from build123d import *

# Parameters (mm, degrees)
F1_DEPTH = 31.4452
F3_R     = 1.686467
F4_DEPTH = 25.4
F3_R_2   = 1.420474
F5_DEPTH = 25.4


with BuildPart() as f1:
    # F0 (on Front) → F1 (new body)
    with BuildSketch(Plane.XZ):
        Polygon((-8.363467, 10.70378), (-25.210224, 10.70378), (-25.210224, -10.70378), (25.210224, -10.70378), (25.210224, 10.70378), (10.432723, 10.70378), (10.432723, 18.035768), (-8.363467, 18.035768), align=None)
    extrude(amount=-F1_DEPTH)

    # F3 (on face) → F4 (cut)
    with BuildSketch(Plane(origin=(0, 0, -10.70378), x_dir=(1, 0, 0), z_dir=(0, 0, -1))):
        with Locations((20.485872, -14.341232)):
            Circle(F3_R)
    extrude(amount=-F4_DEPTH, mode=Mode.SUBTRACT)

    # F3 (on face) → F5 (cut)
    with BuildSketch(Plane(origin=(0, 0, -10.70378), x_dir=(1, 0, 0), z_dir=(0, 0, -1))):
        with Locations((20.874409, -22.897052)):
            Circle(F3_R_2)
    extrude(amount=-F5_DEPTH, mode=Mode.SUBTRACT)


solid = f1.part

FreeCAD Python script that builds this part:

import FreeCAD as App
import Part
import Sketcher
from FreeCAD import Vector


def add_polygon(sketch, points):
    """Adds a closed chain of lines whose ends are joined by coincident constraints."""
    first, n = sketch.GeometryCount, len(points)
    for a, b in zip(points, points[1:] + points[:1]):
        sketch.addGeometry(Part.LineSegment(App.Vector(*a, 0), App.Vector(*b, 0)), False)
    for i in range(n):
        sketch.addConstraint(Sketcher.Constraint("Coincident", first + i, 2, first + (i + 1) % n, 1))

doc = App.newDocument("Part")
params = doc.addObject("Spreadsheet::Sheet", "Params")
for row, (alias, value) in enumerate([
    ("pad1_length", "1.238 in"),
    ("pocket1_length", "1 in"),
    ("pocket2_length", "1 in"),
], start=1):
    params.set(f"A{row}", alias)
    params.set(f"B{row}", "=" + value)
    params.setAlias(f"B{row}", alias)

body = doc.addObject("PartDesign::Body", "Body")

# Sketch on XZ plane
sketch1 = doc.addObject("Sketcher::SketchObject", "Sketch")
body.addObject(sketch1)
sketch1.AttachmentSupport = (doc.XZ_Plane, [""])
sketch1.MapMode = "FlatFace"
add_polygon(sketch1, [(-8, 11), (-25, 11), (-25, -11), (25, -11), (25, 11), (10, 11), (10, 18), (-8, 18)])  # lines 0-7
sketch1.addConstraint([
    Sketcher.Constraint("Horizontal", 0),
    Sketcher.Constraint("Vertical", 1),
    Sketcher.Constraint("Horizontal", 2),
    Sketcher.Constraint("Vertical", 3),
    Sketcher.Constraint("Horizontal", 4),
    Sketcher.Constraint("Vertical", 5),
    Sketcher.Constraint("Horizontal", 6),
    Sketcher.Constraint("Vertical", 7),
    Sketcher.Constraint("Symmetric", 0, 2, 2, 2, -1, 1),
    Sketcher.Constraint("Horizontal", 0, 2, 3, 2),
    Sketcher.Constraint("DistanceX", 4, 2, 4, 1, 14.777501),
    Sketcher.Constraint("DistanceX", 6, 2, 6, 1, 18.79619),
    Sketcher.Constraint("DistanceY", 1, 2, 1, 1, 21.40756),
    Sketcher.Constraint("DistanceY", 5, 1, 5, 2, 7.331988),
    Sketcher.Constraint("DistanceX", 0, 2, 0, 1, 16.846757),
])
pad1 = doc.addObject("PartDesign::Pad", "Pad")
body.addObject(pad1)
pad1.Profile = sketch1
pad1.setExpression("Length", "Params.pad1_length")
pad1.Reversed = True

# Sketch on XY plane
sketch2 = doc.addObject("Sketcher::SketchObject", "Sketch001")
body.addObject(sketch2)
sketch2.AttachmentSupport = (doc.XY_Plane, [""])
sketch2.MapMode = "FlatFace"
sketch2.AttachmentOffset = App.Placement(Vector(0, 0, -10.70378), App.Rotation())
sketch2.addGeometry(Part.Circle(Vector(20.5, 14.3, 0), Vector(0, 0, 1), 1.7), False)
sketch2.addConstraint([
    Sketcher.Constraint("Diameter", 0, 3.372934),
    Sketcher.Constraint("DistanceX", -1, 1, 0, 3, 20.485872),
    Sketcher.Constraint("DistanceY", -1, 1, 0, 3, 14.341232),
])
pocket1 = doc.addObject("PartDesign::Pocket", "Pocket")
body.addObject(pocket1)
pocket1.Profile = sketch2
pocket1.setExpression("Length", "Params.pocket1_length")
pocket1.Reversed = True

# Sketch on XY plane
sketch3 = doc.addObject("Sketcher::SketchObject", "Sketch002")
body.addObject(sketch3)
sketch3.AttachmentSupport = (doc.XY_Plane, [""])
sketch3.MapMode = "FlatFace"
sketch3.AttachmentOffset = App.Placement(Vector(0, 0, -10.70378), App.Rotation())
sketch3.addGeometry(Part.Circle(Vector(20.9, 22.9, 0), Vector(0, 0, 1), 1.4), False)
sketch3.addConstraint([
    Sketcher.Constraint("Diameter", 0, 2.840948),
    Sketcher.Constraint("DistanceX", -1, 1, 0, 3, 20.874409),
    Sketcher.Constraint("DistanceY", -1, 1, 0, 3, 22.897052),
])
pocket2 = doc.addObject("PartDesign::Pocket", "Pocket001")
body.addObject(pocket2)
pocket2.Profile = sketch3
pocket2.setExpression("Length", "Params.pocket2_length")
pocket2.Reversed = True

doc.recompute()
